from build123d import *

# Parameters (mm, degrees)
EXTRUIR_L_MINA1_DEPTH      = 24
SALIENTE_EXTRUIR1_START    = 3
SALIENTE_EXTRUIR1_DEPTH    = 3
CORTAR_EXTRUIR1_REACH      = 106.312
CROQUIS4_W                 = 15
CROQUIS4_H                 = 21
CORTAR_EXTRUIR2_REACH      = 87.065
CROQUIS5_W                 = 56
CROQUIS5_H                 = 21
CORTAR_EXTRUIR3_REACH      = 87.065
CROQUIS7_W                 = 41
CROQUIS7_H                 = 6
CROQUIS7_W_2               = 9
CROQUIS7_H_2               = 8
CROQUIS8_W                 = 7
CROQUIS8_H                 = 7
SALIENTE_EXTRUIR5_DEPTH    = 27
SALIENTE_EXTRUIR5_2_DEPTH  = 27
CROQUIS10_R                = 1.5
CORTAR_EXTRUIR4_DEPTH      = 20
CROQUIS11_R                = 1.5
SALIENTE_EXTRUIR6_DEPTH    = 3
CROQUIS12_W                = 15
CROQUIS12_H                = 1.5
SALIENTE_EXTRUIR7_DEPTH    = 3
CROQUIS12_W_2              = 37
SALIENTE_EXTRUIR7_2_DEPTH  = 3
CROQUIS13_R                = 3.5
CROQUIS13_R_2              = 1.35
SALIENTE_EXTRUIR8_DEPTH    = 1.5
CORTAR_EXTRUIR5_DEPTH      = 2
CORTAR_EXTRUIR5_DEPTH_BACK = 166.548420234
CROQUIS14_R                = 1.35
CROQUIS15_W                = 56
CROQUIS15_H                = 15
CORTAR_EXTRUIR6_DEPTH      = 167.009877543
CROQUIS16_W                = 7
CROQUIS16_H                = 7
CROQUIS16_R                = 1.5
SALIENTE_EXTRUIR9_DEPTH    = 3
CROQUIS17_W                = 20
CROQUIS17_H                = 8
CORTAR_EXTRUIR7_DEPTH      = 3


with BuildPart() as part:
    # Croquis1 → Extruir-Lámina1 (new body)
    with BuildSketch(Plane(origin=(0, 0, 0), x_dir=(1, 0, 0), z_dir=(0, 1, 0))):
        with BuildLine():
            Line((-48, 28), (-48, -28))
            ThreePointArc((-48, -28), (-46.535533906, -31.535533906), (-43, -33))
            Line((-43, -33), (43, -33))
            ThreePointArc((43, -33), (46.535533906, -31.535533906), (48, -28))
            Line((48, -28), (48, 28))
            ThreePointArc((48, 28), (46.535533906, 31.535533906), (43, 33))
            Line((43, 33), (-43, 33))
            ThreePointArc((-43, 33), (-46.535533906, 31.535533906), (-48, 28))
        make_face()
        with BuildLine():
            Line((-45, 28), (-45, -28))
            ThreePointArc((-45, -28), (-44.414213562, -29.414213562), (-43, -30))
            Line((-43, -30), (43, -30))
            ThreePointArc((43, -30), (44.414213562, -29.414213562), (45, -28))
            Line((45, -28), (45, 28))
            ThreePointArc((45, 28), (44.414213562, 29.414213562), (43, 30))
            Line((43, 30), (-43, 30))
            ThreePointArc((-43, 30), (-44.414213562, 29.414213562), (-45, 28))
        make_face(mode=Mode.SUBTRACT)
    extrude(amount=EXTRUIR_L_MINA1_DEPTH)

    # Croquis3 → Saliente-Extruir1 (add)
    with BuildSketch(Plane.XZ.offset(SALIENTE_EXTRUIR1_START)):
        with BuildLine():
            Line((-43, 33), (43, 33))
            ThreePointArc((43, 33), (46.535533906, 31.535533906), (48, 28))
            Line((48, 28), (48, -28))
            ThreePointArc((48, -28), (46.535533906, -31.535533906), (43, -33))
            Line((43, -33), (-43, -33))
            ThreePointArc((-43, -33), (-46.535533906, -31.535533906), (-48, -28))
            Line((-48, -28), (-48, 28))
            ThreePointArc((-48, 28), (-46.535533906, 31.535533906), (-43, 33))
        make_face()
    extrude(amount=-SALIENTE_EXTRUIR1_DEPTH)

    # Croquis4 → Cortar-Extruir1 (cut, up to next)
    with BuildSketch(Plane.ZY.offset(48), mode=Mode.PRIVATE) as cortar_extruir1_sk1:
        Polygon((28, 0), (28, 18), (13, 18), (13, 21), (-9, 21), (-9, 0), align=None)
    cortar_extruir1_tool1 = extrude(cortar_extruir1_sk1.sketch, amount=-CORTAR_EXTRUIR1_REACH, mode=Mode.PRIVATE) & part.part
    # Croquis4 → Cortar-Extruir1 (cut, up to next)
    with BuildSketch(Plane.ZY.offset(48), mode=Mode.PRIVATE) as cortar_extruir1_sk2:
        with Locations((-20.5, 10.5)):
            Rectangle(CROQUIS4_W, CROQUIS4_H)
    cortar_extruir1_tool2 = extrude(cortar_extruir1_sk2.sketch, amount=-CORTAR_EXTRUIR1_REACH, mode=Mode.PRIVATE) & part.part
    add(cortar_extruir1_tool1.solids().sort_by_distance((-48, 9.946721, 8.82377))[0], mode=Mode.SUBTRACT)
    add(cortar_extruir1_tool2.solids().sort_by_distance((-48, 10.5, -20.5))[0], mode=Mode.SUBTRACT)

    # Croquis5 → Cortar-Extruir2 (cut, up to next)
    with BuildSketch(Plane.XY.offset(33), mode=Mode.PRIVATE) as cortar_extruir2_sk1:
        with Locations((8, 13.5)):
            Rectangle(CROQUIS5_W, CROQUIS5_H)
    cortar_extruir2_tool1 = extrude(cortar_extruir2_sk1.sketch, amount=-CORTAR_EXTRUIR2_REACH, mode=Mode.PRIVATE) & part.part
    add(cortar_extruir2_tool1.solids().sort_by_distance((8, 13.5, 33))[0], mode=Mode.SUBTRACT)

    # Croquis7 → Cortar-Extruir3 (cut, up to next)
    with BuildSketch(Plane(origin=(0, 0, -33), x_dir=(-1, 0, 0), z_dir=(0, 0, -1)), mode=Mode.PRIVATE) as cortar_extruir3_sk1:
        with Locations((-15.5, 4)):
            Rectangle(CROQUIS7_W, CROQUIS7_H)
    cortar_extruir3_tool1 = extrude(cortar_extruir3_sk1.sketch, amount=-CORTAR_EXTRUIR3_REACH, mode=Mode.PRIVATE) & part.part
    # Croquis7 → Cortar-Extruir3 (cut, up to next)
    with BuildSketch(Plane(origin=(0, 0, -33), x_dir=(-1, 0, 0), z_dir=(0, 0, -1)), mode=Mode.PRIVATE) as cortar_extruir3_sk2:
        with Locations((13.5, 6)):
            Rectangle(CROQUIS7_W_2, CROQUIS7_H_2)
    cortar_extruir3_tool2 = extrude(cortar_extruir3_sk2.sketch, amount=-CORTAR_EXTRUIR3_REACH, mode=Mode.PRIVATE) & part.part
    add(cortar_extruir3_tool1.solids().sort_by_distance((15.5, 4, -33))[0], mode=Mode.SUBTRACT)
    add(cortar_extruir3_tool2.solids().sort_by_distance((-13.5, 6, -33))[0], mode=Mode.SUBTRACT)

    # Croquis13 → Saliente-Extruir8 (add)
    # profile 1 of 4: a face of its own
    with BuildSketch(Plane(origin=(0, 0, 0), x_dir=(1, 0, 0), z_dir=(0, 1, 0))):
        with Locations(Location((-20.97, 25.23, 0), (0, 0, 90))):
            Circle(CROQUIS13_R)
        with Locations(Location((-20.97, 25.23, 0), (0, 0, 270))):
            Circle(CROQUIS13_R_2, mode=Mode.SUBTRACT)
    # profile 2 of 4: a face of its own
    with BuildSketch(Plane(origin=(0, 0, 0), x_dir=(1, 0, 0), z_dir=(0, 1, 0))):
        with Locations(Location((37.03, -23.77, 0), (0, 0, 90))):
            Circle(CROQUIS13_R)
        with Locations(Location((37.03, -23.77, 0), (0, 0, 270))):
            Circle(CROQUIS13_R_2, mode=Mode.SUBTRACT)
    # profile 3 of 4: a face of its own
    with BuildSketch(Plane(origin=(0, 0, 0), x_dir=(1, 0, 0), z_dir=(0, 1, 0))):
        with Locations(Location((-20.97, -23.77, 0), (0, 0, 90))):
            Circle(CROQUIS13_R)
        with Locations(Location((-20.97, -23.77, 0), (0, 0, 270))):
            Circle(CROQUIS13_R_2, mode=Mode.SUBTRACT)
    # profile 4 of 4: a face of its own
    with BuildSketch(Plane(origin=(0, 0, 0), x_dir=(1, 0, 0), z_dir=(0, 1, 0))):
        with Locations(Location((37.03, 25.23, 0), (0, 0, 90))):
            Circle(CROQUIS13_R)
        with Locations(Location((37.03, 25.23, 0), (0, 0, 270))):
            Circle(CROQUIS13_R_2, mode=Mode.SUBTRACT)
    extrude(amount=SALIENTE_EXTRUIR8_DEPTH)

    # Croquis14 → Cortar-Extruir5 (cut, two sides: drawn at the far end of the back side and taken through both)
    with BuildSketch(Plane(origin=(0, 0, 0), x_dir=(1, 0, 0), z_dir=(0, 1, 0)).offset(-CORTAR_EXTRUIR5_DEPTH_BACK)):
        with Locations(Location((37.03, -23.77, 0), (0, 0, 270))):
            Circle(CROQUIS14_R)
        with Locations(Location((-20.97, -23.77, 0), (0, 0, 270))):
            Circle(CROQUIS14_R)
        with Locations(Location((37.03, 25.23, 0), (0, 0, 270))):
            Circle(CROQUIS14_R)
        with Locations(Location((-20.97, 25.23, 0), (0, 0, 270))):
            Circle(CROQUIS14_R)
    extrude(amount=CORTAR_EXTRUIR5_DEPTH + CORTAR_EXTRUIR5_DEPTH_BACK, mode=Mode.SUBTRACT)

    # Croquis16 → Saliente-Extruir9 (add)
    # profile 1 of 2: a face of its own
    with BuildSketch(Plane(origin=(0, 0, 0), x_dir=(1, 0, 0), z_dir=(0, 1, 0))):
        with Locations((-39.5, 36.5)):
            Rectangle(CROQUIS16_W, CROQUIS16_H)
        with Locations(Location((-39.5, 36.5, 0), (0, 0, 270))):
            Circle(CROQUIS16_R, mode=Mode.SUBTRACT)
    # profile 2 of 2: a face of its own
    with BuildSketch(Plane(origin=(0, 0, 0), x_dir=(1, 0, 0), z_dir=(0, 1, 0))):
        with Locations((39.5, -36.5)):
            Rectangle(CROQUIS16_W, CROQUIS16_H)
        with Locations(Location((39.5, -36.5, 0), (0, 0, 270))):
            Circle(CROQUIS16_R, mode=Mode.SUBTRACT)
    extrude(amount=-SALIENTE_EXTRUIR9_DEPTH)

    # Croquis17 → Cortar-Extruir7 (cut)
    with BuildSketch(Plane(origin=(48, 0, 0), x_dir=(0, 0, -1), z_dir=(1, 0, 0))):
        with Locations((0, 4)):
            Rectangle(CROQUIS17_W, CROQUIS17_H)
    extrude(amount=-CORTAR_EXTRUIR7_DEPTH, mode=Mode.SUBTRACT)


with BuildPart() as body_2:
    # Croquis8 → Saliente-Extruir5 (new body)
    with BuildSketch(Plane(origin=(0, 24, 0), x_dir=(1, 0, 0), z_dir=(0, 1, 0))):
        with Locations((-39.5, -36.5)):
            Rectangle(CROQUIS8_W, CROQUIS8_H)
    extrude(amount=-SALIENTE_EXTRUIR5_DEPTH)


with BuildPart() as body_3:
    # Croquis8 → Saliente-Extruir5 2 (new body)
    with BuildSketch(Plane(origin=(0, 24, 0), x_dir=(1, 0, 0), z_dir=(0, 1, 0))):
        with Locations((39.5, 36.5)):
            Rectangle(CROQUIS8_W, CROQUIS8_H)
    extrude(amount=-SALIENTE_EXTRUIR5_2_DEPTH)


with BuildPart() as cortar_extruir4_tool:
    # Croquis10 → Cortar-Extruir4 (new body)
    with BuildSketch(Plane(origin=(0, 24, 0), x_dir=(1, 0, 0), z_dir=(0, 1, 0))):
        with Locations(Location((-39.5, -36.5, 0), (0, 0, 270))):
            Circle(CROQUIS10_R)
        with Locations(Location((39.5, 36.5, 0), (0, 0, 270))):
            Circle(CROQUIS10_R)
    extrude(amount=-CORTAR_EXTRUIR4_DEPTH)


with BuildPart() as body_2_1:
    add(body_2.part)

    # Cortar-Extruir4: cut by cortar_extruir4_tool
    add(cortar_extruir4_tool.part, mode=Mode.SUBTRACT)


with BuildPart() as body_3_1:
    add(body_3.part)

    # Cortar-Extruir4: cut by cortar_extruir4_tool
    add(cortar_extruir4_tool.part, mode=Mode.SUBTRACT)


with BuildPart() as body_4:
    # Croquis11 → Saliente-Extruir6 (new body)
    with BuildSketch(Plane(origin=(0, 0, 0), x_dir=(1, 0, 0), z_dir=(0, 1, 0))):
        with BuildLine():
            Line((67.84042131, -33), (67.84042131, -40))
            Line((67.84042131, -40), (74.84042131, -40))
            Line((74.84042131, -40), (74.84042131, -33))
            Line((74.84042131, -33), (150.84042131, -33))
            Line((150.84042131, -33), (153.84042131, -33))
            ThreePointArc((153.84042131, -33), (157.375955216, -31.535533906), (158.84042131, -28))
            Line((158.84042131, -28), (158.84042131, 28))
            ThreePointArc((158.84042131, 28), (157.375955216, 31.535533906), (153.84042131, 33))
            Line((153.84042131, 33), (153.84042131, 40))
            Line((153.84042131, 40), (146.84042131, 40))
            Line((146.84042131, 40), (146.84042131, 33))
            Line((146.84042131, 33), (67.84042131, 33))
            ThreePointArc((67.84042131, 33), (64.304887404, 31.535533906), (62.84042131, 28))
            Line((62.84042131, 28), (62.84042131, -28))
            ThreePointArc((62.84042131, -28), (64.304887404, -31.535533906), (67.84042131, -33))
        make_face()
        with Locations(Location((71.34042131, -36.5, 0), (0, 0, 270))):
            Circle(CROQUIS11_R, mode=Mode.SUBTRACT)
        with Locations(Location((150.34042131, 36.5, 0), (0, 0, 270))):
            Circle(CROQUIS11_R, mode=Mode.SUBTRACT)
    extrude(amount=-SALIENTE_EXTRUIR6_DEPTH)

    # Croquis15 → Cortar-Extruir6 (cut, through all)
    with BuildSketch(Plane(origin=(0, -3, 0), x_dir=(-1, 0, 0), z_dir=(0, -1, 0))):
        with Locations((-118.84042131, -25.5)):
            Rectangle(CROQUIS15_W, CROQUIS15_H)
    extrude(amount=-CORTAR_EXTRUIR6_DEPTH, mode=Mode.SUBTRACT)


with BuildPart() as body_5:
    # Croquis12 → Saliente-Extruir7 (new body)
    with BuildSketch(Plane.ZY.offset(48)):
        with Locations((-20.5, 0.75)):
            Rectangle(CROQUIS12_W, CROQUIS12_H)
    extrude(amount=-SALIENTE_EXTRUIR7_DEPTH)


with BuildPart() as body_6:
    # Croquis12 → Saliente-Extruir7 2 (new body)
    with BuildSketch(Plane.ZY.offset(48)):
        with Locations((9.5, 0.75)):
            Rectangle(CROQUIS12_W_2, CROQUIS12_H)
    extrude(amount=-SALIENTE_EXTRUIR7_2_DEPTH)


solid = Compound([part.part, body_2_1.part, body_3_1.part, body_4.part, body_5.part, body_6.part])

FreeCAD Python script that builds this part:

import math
import FreeCAD as App
import Part
import Sketcher

V = App.Vector


def add_polygon(sketch, points):
    """Adds a closed chain of lines whose ends are joined by coincident constraints."""
    first, n = sketch.GeometryCount, len(points)
    for a, b in zip(points, points[1:] + points[:1]):
        sketch.addGeometry(Part.LineSegment(App.Vector(*a, 0), App.Vector(*b, 0)), False)
    for i in range(n):
        sketch.addConstraint(Sketcher.Constraint("Coincident", first + i, 2, first + (i + 1) % n, 1))

doc = App.newDocument("Part")
body = doc.addObject("PartDesign::Body", "Body")

# Sketch on XZ plane
sketch1 = body.newObject("Sketcher::SketchObject", "Sketch")
sketch1.AttachmentSupport = (doc.getObject("XZ_Plane"), [""])
sketch1.MapMode = "FlatFace"
sketch1.addGeometry(Part.LineSegment(V(-48, -28, 0), V(-48, 28, 0)), False)
sketch1.addGeometry(Part.ArcOfCircle(Part.Circle(V(-43, 28, 0), V(0, 0, 1), 5), math.radians(90), math.radians(180)), False)
sketch1.addGeometry(Part.LineSegment(V(-43, 33, 0), V(43, 33, 0)), False)
sketch1.addGeometry(Part.ArcOfCircle(Part.Circle(V(43, 28, 0), V(0, 0, 1), 5), math.radians(0), math.radians(90)), False)
sketch1.addGeometry(Part.LineSegment(V(48, 28, 0), V(48, -28, 0)), False)
sketch1.addGeometry(Part.ArcOfCircle(Part.Circle(V(43, -28, 0), V(0, 0, 1), 5), math.radians(-90), math.radians(0)), False)
sketch1.addGeometry(Part.LineSegment(V(43, -33, 0), V(-43, -33, 0)), False)
sketch1.addGeometry(Part.ArcOfCircle(Part.Circle(V(-43, -28, 0), V(0, 0, 1), 5), math.radians(180), math.radians(270)), False)
sketch1.addGeometry(Part.LineSegment(V(-45, 28, 0), V(-45, -28, 0)), False)
sketch1.addGeometry(Part.ArcOfCircle(Part.Circle(V(-43, -28, 0), V(0, 0, 1), 2), math.radians(-180), math.radians(-90)), False)
sketch1.addGeometry(Part.LineSegment(V(-43, -30, 0), V(43, -30, 0)), False)
sketch1.addGeometry(Part.ArcOfCircle(Part.Circle(V(43, -28, 0), V(0, 0, 1), 2), math.radians(-90), math.radians(0)), False)
sketch1.addGeometry(Part.LineSegment(V(45, -28, 0), V(45, 28, 0)), False)
sketch1.addGeometry(Part.ArcOfCircle(Part.Circle(V(43, 28, 0), V(0, 0, 1), 2), math.radians(0), math.radians(90)), False)
sketch1.addGeometry(Part.LineSegment(V(43, 30, 0), V(-43, 30, 0)), False)
sketch1.addGeometry(Part.ArcOfCircle(Part.Circle(V(-43, 28, 0), V(0, 0, 1), 2), math.radians(90), math.radians(180)), False)
sketch1.addConstraint(Sketcher.Constraint("Tangent", 0, 2, 1, 2))
sketch1.addConstraint(Sketcher.Constraint("Tangent", 1, 1, 2, 1))
sketch1.addConstraint(Sketcher.Constraint("Tangent", 2, 2, 3, 2))
sketch1.addConstraint(Sketcher.Constraint("Tangent", 3, 1, 4, 1))
sketch1.addConstraint(Sketcher.Constraint("Tangent", 4, 2, 5, 2))
sketch1.addConstraint(Sketcher.Constraint("Tangent", 5, 1, 6, 1))
sketch1.addConstraint(Sketcher.Constraint("Tangent", 6, 2, 7, 2))
sketch1.addConstraint(Sketcher.Constraint("Tangent", 7, 1, 0, 1))
sketch1.addConstraint(Sketcher.Constraint("Tangent", 8, 2, 9, 1))
sketch1.addConstraint(Sketcher.Constraint("Tangent", 9, 2, 10, 1))
sketch1.addConstraint(Sketcher.Constraint("Tangent", 10, 2, 11, 1))
sketch1.addConstraint(Sketcher.Constraint("Tangent", 11, 2, 12, 1))
sketch1.addConstraint(Sketcher.Constraint("Tangent", 12, 2, 13, 1))
sketch1.addConstraint(Sketcher.Constraint("Tangent", 13, 2, 14, 1))
sketch1.addConstraint(Sketcher.Constraint("Tangent", 14, 2, 15, 1))
sketch1.addConstraint(Sketcher.Constraint("Tangent", 15, 2, 8, 1))
sketch1.addConstraint(Sketcher.Constraint("Vertical", 0))
sketch1.addConstraint(Sketcher.Constraint("Horizontal", 2))
sketch1.addConstraint(Sketcher.Constraint("Vertical", 4))
sketch1.addConstraint(Sketcher.Constraint("Horizontal", 6))
sketch1.addConstraint(Sketcher.Constraint("Vertical", 8))
sketch1.addConstraint(Sketcher.Constraint("Horizontal", 10))
sketch1.addConstraint(Sketcher.Constraint("Vertical", 12))
sketch1.addConstraint(Sketcher.Constraint("Horizontal", 14))
sketch1.addConstraint(Sketcher.Constraint("Coincident", 9, 3, 7, 3))
sketch1.addConstraint(Sketcher.Constraint("Coincident", 11, 3, 5, 3))
sketch1.addConstraint(Sketcher.Constraint("Coincident", 13, 3, 3, 3))
sketch1.addConstraint(Sketcher.Constraint("Equal", 1, 3))
sketch1.addConstraint(Sketcher.Constraint("Equal", 3, 5))
sketch1.addConstraint(Sketcher.Constraint("Equal", 5, 7))
sketch1.addConstraint(Sketcher.Constraint("Equal", 13, 15))
sketch1.addConstraint(Sketcher.Constraint("Symmetric", 1, 3, 5, 3, -1, 1))
sketch1.addConstraint(Sketcher.Constraint("Radius", 1, 5.0))
sketch1.addConstraint(Sketcher.Constraint("Radius", 9, 2.0))
sketch1.addConstraint(Sketcher.Constraint("DistanceX", 2, 1, 2, 2, 86.0))
sketch1.addConstraint(Sketcher.Constraint("DistanceY", 0, 1, 0, 2, 56.0))
pad1 = body.newObject("PartDesign::Pad", "Pad")
pad1.Profile = sketch1
pad1.Length = 24
pad1.Reversed = True

# Sketch on XZ plane
sketch2 = body.newObject("Sketcher::SketchObject", "Sketch001")
sketch2.AttachmentSupport = (doc.getObject("XZ_Plane"), [""])
sketch2.MapMode = "FlatFace"
sketch2.AttachmentOffset = App.Placement(V(0, 0, 3), App.Rotation())
sketch2.addGeometry(Part.LineSegment(V(43, 33, 0), V(-43, 33, 0)), False)
sketch2.addGeometry(Part.ArcOfCircle(Part.Circle(V(-43, 28, 0), V(0, 0, 1), 5), math.radians(90), math.radians(180)), False)
sketch2.addGeometry(Part.LineSegment(V(-48, 28, 0), V(-48, -28, 0)), False)
sketch2.addGeometry(Part.ArcOfCircle(Part.Circle(V(-43, -28, 0), V(0, 0, 1), 5), math.radians(180), math.radians(270)), False)
sketch2.addGeometry(Part.LineSegment(V(-43, -33, 0), V(43, -33, 0)), False)
sketch2.addGeometry(Part.ArcOfCircle(Part.Circle(V(43, -28, 0), V(0, 0, 1), 5), math.radians(-90), math.radians(0)), False)
sketch2.addGeometry(Part.LineSegment(V(48, -28, 0), V(48, 28, 0)), False)
sketch2.addGeometry(Part.ArcOfCircle(Part.Circle(V(43, 28, 0), V(0, 0, 1), 5), math.radians(0), math.radians(90)), False)
sketch2.addConstraint(Sketcher.Constraint("Tangent", 0, 2, 1, 1))
sketch2.addConstraint(Sketcher.Constraint("Tangent", 1, 2, 2, 1))
sketch2.addConstraint(Sketcher.Constraint("Tangent", 2, 2, 3, 1))
sketch2.addConstraint(Sketcher.Constraint("Tangent", 3, 2, 4, 1))
sketch2.addConstraint(Sketcher.Constraint("Tangent", 4, 2, 5, 1))
sketch2.addConstraint(Sketcher.Constraint("Tangent", 5, 2, 6, 1))
sketch2.addConstraint(Sketcher.Constraint("Tangent", 6, 2, 7, 1))
sketch2.addConstraint(Sketcher.Constraint("Tangent", 7, 2, 0, 1))
sketch2.addConstraint(Sketcher.Constraint("Horizontal", 0))
sketch2.addConstraint(Sketcher.Constraint("Vertical", 2))
sketch2.addConstraint(Sketcher.Constraint("Horizontal", 4))
sketch2.addConstraint(Sketcher.Constraint("Vertical", 6))
sketch2.addConstraint(Sketcher.Constraint("Equal", 1, 3))
sketch2.addConstraint(Sketcher.Constraint("Equal", 3, 5))
sketch2.addConstraint(Sketcher.Constraint("Equal", 5, 7))
sketch2.addConstraint(Sketcher.Constraint("Symmetric", 1, 3, 5, 3, -1, 1))
sketch2.addConstraint(Sketcher.Constraint("Radius", 1, 5.0))
sketch2.addConstraint(Sketcher.Constraint("DistanceX", 0, 2, 0, 1, 86.0))
sketch2.addConstraint(Sketcher.Constraint("DistanceY", 2, 2, 2, 1, 56.0))
pad2 = body.newObject("PartDesign::Pad", "Pad001")
pad2.Profile = sketch2
pad2.Length = 3
pad2.Reversed = True

# Sketch on YZ plane
sketch3 = body.newObject("Sketcher::SketchObject", "Sketch002")
sketch3.AttachmentSupport = (doc.getObject("YZ_Plane"), [""])
sketch3.MapMode = "FlatFace"
sketch3.AttachmentOffset = App.Placement(V(0, 0, -48), App.Rotation())
add_polygon(sketch3, [(0, 28), (18, 28), (18, 13), (21, 13), (21, -9), (0, -9)])  # lines 0-5
sketch3.addConstraint(Sketcher.Constraint("Horizontal", 0))
sketch3.addConstraint(Sketcher.Constraint("Vertical", 1))
sketch3.addConstraint(Sketcher.Constraint("Horizontal", 2))
sketch3.addConstraint(Sketcher.Constraint("Vertical", 3))
sketch3.addConstraint(Sketcher.Constraint("Horizontal", 4))
sketch3.addConstraint(Sketcher.Constraint("Vertical", 5))
sketch3.addConstraint(Sketcher.Constraint("PointOnObject", 4, 2, -2))
sketch3.addConstraint(Sketcher.Constraint("DistanceX", 0, 1, 0, 2, 18.0))
sketch3.addConstraint(Sketcher.Constraint("DistanceX", 2, 1, 2, 2, 3.0))
sketch3.addConstraint(Sketcher.Constraint("DistanceY", 1, 2, 1, 1, 15.0))
sketch3.addConstraint(Sketcher.Constraint("DistanceY", 3, 2, 3, 1, 22.0))
sketch3.addConstraint(Sketcher.Constraint("DistanceY", -1, 1, 0, 2, 28.0))
pocket1 = body.newObject("PartDesign::Pocket", "Pocket")
pocket1.Profile = sketch3
pocket1.Type = "UpToFirst"
pocket1.Reversed = True

# Sketch on YZ plane
sketch4 = body.newObject("Sketcher::SketchObject", "Sketch003")
sketch4.AttachmentSupport = (doc.getObject("YZ_Plane"), [""])
sketch4.MapMode = "FlatFace"
sketch4.AttachmentOffset = App.Placement(V(0, 0, -48), App.Rotation())
add_polygon(sketch4, [(21, -28), (0, -28), (0, -13), (21, -13)])  # lines 0-3
sketch4.addConstraint(Sketcher.Constraint("Horizontal", 0))
sketch4.addConstraint(Sketcher.Constraint("Vertical", 1))
sketch4.addConstraint(Sketcher.Constraint("Horizontal", 2))
sketch4.addConstraint(Sketcher.Constraint("Vertical", 3))
sketch4.addConstraint(Sketcher.Constraint("PointOnObject", 0, 2, -2))
sketch4.addConstraint(Sketcher.Constraint("DistanceX", 0, 2, 0, 1, 21.0))
sketch4.addConstraint(Sketcher.Constraint("DistanceY", 1, 1, 1, 2, 15.0))
sketch4.addConstraint(Sketcher.Constraint("DistanceY", 0, 2, -1, 1, 28.0))
pocket2 = body.newObject("PartDesign::Pocket", "Pocket001")
pocket2.Profile = sketch4
pocket2.Type = "UpToFirst"
pocket2.Reversed = True

# Sketch on XY plane
sketch5 = body.newObject("Sketcher::SketchObject", "Sketch004")
sketch5.AttachmentSupport = (doc.getObject("XY_Plane"), [""])
sketch5.MapMode = "FlatFace"
sketch5.AttachmentOffset = App.Placement(V(0, 0, 33), App.Rotation())
add_polygon(sketch5, [(-20, 24), (-20, 3), (36, 3), (36, 24)])  # lines 0-3
sketch5.addConstraint(Sketcher.Constraint("Vertical", 0))
sketch5.addConstraint(Sketcher.Constraint("Horizontal", 1))
sketch5.addConstraint(Sketcher.Constraint("Vertical", 2))
sketch5.addConstraint(Sketcher.Constraint("Horizontal", 3))
sketch5.addConstraint(Sketcher.Constraint("DistanceX", 1, 1, 1, 2, 56.0))
sketch5.addConstraint(Sketcher.Constraint("DistanceY", 0, 2, 0, 1, 21.0))
sketch5.addConstraint(Sketcher.Constraint("DistanceX", 0, 2, -1, 1, 20.0))
sketch5.addConstraint(Sketcher.Constraint("DistanceY", -1, 1, 0, 2, 3.0))
pocket3 = body.newObject("PartDesign::Pocket", "Pocket002")
pocket3.Profile = sketch5
pocket3.Type = "UpToFirst"

# Sketch on XY plane
sketch6 = body.newObject("Sketcher::SketchObject", "Sketch005")
sketch6.AttachmentSupport = (doc.getObject("XY_Plane"), [""])
sketch6.MapMode = "FlatFace"
sketch6.AttachmentOffset = App.Placement(V(0, 0, -33), App.Rotation())
add_polygon(sketch6, [(36, 7), (36, 1), (-5, 1), (-5, 7)])  # lines 0-3
sketch6.addConstraint(Sketcher.Constraint("Vertical", 0))
sketch6.addConstraint(Sketcher.Constraint("Horizontal", 1))
sketch6.addConstraint(Sketcher.Constraint("Vertical", 2))
sketch6.addConstraint(Sketcher.Constraint("Horizontal", 3))
sketch6.addConstraint(Sketcher.Constraint("DistanceX", 1, 2, 1, 1, 41.0))
sketch6.addConstraint(Sketcher.Constraint("DistanceY", 0, 2, 0, 1, 6.0))
sketch6.addConstraint(Sketcher.Constraint("DistanceX", -1, 1, 0, 2, 36.0))
sketch6.addConstraint(Sketcher.Constraint("DistanceY", -1, 1, 0, 2, 1.0))
pocket4 = body.newObject("PartDesign::Pocket", "Pocket003")
pocket4.Profile = sketch6
pocket4.Type = "UpToFirst"
pocket4.Reversed = True

# Sketch on XY plane
sketch7 = body.newObject("Sketcher::SketchObject", "Sketch006")
sketch7.AttachmentSupport = (doc.getObject("XY_Plane"), [""])
sketch7.MapMode = "FlatFace"
sketch7.AttachmentOffset = App.Placement(V(0, 0, -33), App.Rotation())
add_polygon(sketch7, [(-9, 10), (-9, 2), (-18, 2), (-18, 10)])  # lines 0-3
sketch7.addConstraint(Sketcher.Constraint("Vertical", 0))
sketch7.addConstraint(Sketcher.Constraint("Horizontal", 1))
sketch7.addConstraint(Sketcher.Constraint("Vertical", 2))
sketch7.addConstraint(Sketcher.Constraint("Horizontal", 3))
sketch7.addConstraint(Sketcher.Constraint("DistanceX", 1, 2, 1, 1, 9.0))
sketch7.addConstraint(Sketcher.Constraint("DistanceY", 0, 2, 0, 1, 8.0))
sketch7.addConstraint(Sketcher.Constraint("DistanceX", 0, 2, -1, 1, 9.0))
sketch7.addConstraint(Sketcher.Constraint("DistanceY", -1, 1, 0, 2, 2.0))
pocket5 = body.newObject("PartDesign::Pocket", "Pocket004")
pocket5.Profile = sketch7
pocket5.Type = "UpToFirst"
pocket5.Reversed = True

# Sketch on XZ plane
sketch8 = body.newObject("Sketcher::SketchObject", "Sketch007")
sketch8.AttachmentSupport = (doc.getObject("XZ_Plane"), [""])
sketch8.MapMode = "FlatFace"
sketch8.addGeometry(Part.Circle(V(-21, -25.2, 0), V(0, 0, 1), 3.5), False)
sketch8.addGeometry(Part.Circle(V(-21, -25.2, 0), V(0, 0, 1), 1.4), False)
sketch8.addGeometry(Part.Circle(V(37, 23.8, 0), V(0, 0, 1), 3.5), False)
sketch8.addGeometry(Part.Circle(V(37, 23.8, 0), V(0, 0, 1), 1.4), False)
sketch8.addGeometry(Part.Circle(V(-21, 23.8, 0), V(0, 0, 1), 3.5), False)
sketch8.addGeometry(Part.Circle(V(-21, 23.8, 0), V(0, 0, 1), 1.4), False)
sketch8.addGeometry(Part.Circle(V(37, -25.2, 0), V(0, 0, 1), 3.5), False)
sketch8.addGeometry(Part.Circle(V(37, -25.2, 0), V(0, 0, 1), 1.4), False)
sketch8.addConstraint(Sketcher.Constraint("Coincident", 1, 3, 0, 3))
sketch8.addConstraint(Sketcher.Constraint("Coincident", 3, 3, 2, 3))
sketch8.addConstraint(Sketcher.Constraint("Coincident", 5, 3, 4, 3))
sketch8.addConstraint(Sketcher.Constraint("Coincident", 7, 3, 6, 3))
sketch8.addConstraint(Sketcher.Constraint("Equal", 0, 2))
sketch8.addConstraint(Sketcher.Constraint("Equal", 1, 3))
sketch8.addConstraint(Sketcher.Constraint("Equal", 2, 4))
sketch8.addConstraint(Sketcher.Constraint("Equal", 3, 5))
sketch8.addConstraint(Sketcher.Constraint("Equal", 4, 6))
sketch8.addConstraint(Sketcher.Constraint("Equal", 5, 7))
sketch8.addConstraint(Sketcher.Constraint("Horizontal", 3, 3, 4, 3))
sketch8.addConstraint(Sketcher.Constraint("Horizontal", 1, 3, 6, 3))
sketch8.addConstraint(Sketcher.Constraint("Vertical", 1, 3, 4, 3))
sketch8.addConstraint(Sketcher.Constraint("Vertical", 3, 3, 6, 3))
sketch8.addConstraint(Sketcher.Constraint("Diameter", 0, 7.0))
sketch8.addConstraint(Sketcher.Constraint("Diameter", 1, 2.7))
sketch8.addConstraint(Sketcher.Constraint("DistanceX", 0, 3, 2, 3, 58.0))
sketch8.addConstraint(Sketcher.Constraint("DistanceY", 0, 3, 2, 3, 49.0))
sketch8.addConstraint(Sketcher.Constraint("DistanceX", 0, 3, -1, 1, 20.97))
sketch8.addConstraint(Sketcher.Constraint("DistanceY", 0, 3, -1, 1, 25.23))
pad3 = body.newObject("PartDesign::Pad", "Pad002")
pad3.Profile = sketch8
pad3.Length = 1.5
pad3.Reversed = True

# Sketch on XZ plane
sketch9 = body.newObject("Sketcher::SketchObject", "Sketch008")
sketch9.AttachmentSupport = (doc.getObject("XZ_Plane"), [""])
sketch9.MapMode = "FlatFace"
sketch9.addGeometry(Part.Circle(V(37, 23.8, 0), V(0, 0, 1), 1.4), False)
sketch9.addGeometry(Part.Circle(V(-21, 23.8, 0), V(0, 0, 1), 1.4), False)
sketch9.addGeometry(Part.Circle(V(37, -25.2, 0), V(0, 0, 1), 1.4), False)
sketch9.addGeometry(Part.Circle(V(-21, -25.2, 0), V(0, 0, 1), 1.4), False)
sketch9.addConstraint(Sketcher.Constraint("Equal", 0, 1))
sketch9.addConstraint(Sketcher.Constraint("Equal", 1, 2))
sketch9.addConstraint(Sketcher.Constraint("Equal", 2, 3))
sketch9.addConstraint(Sketcher.Constraint("Horizontal", 0, 3, 1, 3))
sketch9.addConstraint(Sketcher.Constraint("Horizontal", 2, 3, 3, 3))
sketch9.addConstraint(Sketcher.Constraint("Vertical", 0, 3, 2, 3))
sketch9.addConstraint(Sketcher.Constraint("Vertical", 1, 3, 3, 3))
sketch9.addConstraint(Sketcher.Constraint("Diameter", 0, 2.7))
sketch9.addConstraint(Sketcher.Constraint("DistanceX", 1, 3, 0, 3, 58.0))
sketch9.addConstraint(Sketcher.Constraint("DistanceY", 2, 3, 0, 3, 49.0))
sketch9.addConstraint(Sketcher.Constraint("DistanceX", -1, 1, 0, 3, 37.03))
sketch9.addConstraint(Sketcher.Constraint("DistanceY", -1, 1, 0, 3, 23.77))
pocket6 = body.newObject("PartDesign::Pocket", "Pocket005")
pocket6.Profile = sketch9
pocket6.Type = "ThroughAll"
pocket6.Midplane = True

# Sketch on XZ plane
sketch10 = body.newObject("Sketcher::SketchObject", "Sketch009")
sketch10.AttachmentSupport = (doc.getObject("XZ_Plane"), [""])
sketch10.MapMode = "FlatFace"
add_polygon(sketch10, [(-43, -40), (-43, -33), (-36, -33), (-36, -40)])  # lines 0-3
sketch10.addGeometry(Part.Circle(V(-39.5, -36.5, 0), V(0, 0, 1), 1.5), False)  # 4
add_polygon(sketch10, [(36, 33), (36, 40), (43, 40), (43, 33)])  # lines 5-8
sketch10.addGeometry(Part.Circle(V(39.5, 36.5, 0), V(0, 0, 1), 1.5), False)  # 9
sketch10.addConstraint(Sketcher.Constraint("Vertical", 0))
sketch10.addConstraint(Sketcher.Constraint("Horizontal", 1))
sketch10.addConstraint(Sketcher.Constraint("Vertical", 2))
sketch10.addConstraint(Sketcher.Constraint("Horizontal", 3))
sketch10.addConstraint(Sketcher.Constraint("Vertical", 5))
sketch10.addConstraint(Sketcher.Constraint("Horizontal", 6))
sketch10.addConstraint(Sketcher.Constraint("Vertical", 7))
sketch10.addConstraint(Sketcher.Constraint("Horizontal", 8))
sketch10.addConstraint(Sketcher.Constraint("Equal", 4, 9))
sketch10.addConstraint(Sketcher.Constraint("Symmetric", 4, 3, 9, 3, -1, 1))
sketch10.addConstraint(Sketcher.Constraint("Symmetric", 2, 2, 5, 2, -1, 1))
sketch10.addConstraint(Sketcher.Constraint("Symmetric", 0, 2, 7, 2, -1, 1))
sketch10.addConstraint(Sketcher.Constraint("Equal", 8, 0))
sketch10.addConstraint(Sketcher.Constraint("Diameter", 4, 3.0))
sketch10.addConstraint(Sketcher.Constraint("DistanceX", 1, 1, 1, 2, 7.0))
sketch10.addConstraint(Sketcher.Constraint("DistanceX", 0, 2, -1, 1, 43.0))
sketch10.addConstraint(Sketcher.Constraint("DistanceY", 0, 2, -1, 1, 33.0))
sketch10.addConstraint(Sketcher.Constraint("DistanceX", 4, 3, 9, 3, 79.0))
sketch10.addConstraint(Sketcher.Constraint("DistanceY", 4, 3, 9, 3, 73.0))
pad4 = body.newObject("PartDesign::Pad", "Pad003")
pad4.Profile = sketch10
pad4.Length = 3

# Sketch on YZ plane
sketch11 = body.newObject("Sketcher::SketchObject", "Sketch010")
sketch11.AttachmentSupport = (doc.getObject("YZ_Plane"), [""])
sketch11.MapMode = "FlatFace"
sketch11.AttachmentOffset = App.Placement(V(0, 0, 48), App.Rotation())
add_polygon(sketch11, [(8, 10), (0, 10), (0, -10), (8, -10)])  # lines 0-3
sketch11.addConstraint(Sketcher.Constraint("Horizontal", 0))
sketch11.addConstraint(Sketcher.Constraint("Vertical", 1))
sketch11.addConstraint(Sketcher.Constraint("Horizontal", 2))
sketch11.addConstraint(Sketcher.Constraint("Vertical", 3))
sketch11.addConstraint(Sketcher.Constraint("Symmetric", 0, 2, 1, 2, -1, 1))
sketch11.addConstraint(Sketcher.Constraint("DistanceX", 0, 2, 0, 1, 8.0))
sketch11.addConstraint(Sketcher.Constraint("DistanceY", 1, 2, 1, 1, 20.0))
pocket7 = body.newObject("PartDesign::Pocket", "Pocket006")
pocket7.Profile = sketch11
pocket7.Length = 3
body2 = doc.addObject("PartDesign::Body", "Body001")

# Sketch on XZ plane
sketch12 = body2.newObject("Sketcher::SketchObject", "Sketch011")
sketch12.AttachmentSupport = (doc.getObject("XZ_Plane001"), [""])
sketch12.MapMode = "FlatFace"
sketch12.AttachmentOffset = App.Placement(V(0, 0, -24), App.Rotation())
add_polygon(sketch12, [(-43, 33), (-43, 40), (-36, 40), (-36, 33)])  # lines 0-3
sketch12.addConstraint(Sketcher.Constraint("Vertical", 0))
sketch12.addConstraint(Sketcher.Constraint("Horizontal", 1))
sketch12.addConstraint(Sketcher.Constraint("Vertical", 2))
sketch12.addConstraint(Sketcher.Constraint("Horizontal", 3))
sketch12.addConstraint(Sketcher.Constraint("Equal", 3, 0))
sketch12.addConstraint(Sketcher.Constraint("DistanceX", 1, 1, 1, 2, 7.0))
sketch12.addConstraint(Sketcher.Constraint("DistanceX", 0, 2, -1, 1, 43.0))
sketch12.addConstraint(Sketcher.Constraint("DistanceY", -1, 1, 0, 2, 40.0))
pad5 = body2.newObject("PartDesign::Pad", "Pad004")
pad5.Profile = sketch12
pad5.Length = 27
body3 = doc.addObject("PartDesign::Body", "Body002")

# Sketch on XZ plane
sketch13 = body3.newObject("Sketcher::SketchObject", "Sketch012")
sketch13.AttachmentSupport = (doc.getObject("XZ_Plane002"), [""])
sketch13.MapMode = "FlatFace"
sketch13.AttachmentOffset = App.Placement(V(0, 0, -24), App.Rotation())
add_polygon(sketch13, [(36, -40), (36, -33), (43, -33), (43, -40)])  # lines 0-3
sketch13.addConstraint(Sketcher.Constraint("Vertical", 0))
sketch13.addConstraint(Sketcher.Constraint("Horizontal", 1))
sketch13.addConstraint(Sketcher.Constraint("Vertical", 2))
sketch13.addConstraint(Sketcher.Constraint("Horizontal", 3))
sketch13.addConstraint(Sketcher.Constraint("Equal", 3, 0))
sketch13.addConstraint(Sketcher.Constraint("DistanceX", 1, 1, 1, 2, 7.0))
sketch13.addConstraint(Sketcher.Constraint("DistanceX", -1, 1, 0, 2, 36.0))
sketch13.addConstraint(Sketcher.Constraint("DistanceY", 0, 2, -1, 1, 33.0))
pad6 = body3.newObject("PartDesign::Pad", "Pad005")
pad6.Profile = sketch13
pad6.Length = 27
body4 = doc.addObject("PartDesign::Body", "Body003")
body4.AllowCompound = True

# Sketch on XZ plane
sketch14 = body4.newObject("Sketcher::SketchObject", "Sketch013")
sketch14.AttachmentSupport = (doc.getObject("XZ_Plane003"), [""])
sketch14.MapMode = "FlatFace"
sketch14.AttachmentOffset = App.Placement(V(0, 0, -24), App.Rotation())
sketch14.addGeometry(Part.Circle(V(-39.5, 36.5, 0), V(0, 0, 1), 1.5), False)
sketch14.addGeometry(Part.Circle(V(39.5, -36.5, 0), V(0, 0, 1), 1.5), False)
sketch14.addConstraint(Sketcher.Constraint("Equal", 0, 1))
sketch14.addConstraint(Sketcher.Constraint("Symmetric", 0, 3, 1, 3, -1, 1))
sketch14.addConstraint(Sketcher.Constraint("Diameter", 0, 3.0))
sketch14.addConstraint(Sketcher.Constraint("DistanceX", 0, 3, 1, 3, 79.0))
sketch14.addConstraint(Sketcher.Constraint("DistanceY", 1, 3, 0, 3, 73.0))
pad7 = body4.newObject("PartDesign::Pad", "Pad006")
pad7.Profile = sketch14
pad7.Length = 20
doc.recompute()

body5 = doc.addObject("PartDesign::Body", "Body004")
body5.BaseFeature = body4
boolean = body2.newObject("PartDesign::Boolean", "Boolean")
boolean.Type = "Cut"
boolean.addObjects([body5])
doc.recompute()

boolean2 = body3.newObject("PartDesign::Boolean", "Boolean001")
boolean2.Type = "Cut"
boolean2.addObjects([body4])
body6 = doc.addObject("PartDesign::Body", "Body005")

# Sketch on XZ plane
sketch15 = body6.newObject("Sketcher::SketchObject", "Sketch014")
sketch15.AttachmentSupport = (doc.getObject("XZ_Plane005"), [""])
sketch15.MapMode = "FlatFace"
sketch15.addGeometry(Part.LineSegment(V(67.8, 33, 0), V(67.8, 40, 0)), False)
sketch15.addGeometry(Part.LineSegment(V(67.8, 40, 0), V(74.8, 40, 0)), False)
sketch15.addGeometry(Part.LineSegment(V(74.8, 40, 0), V(74.8, 33, 0)), False)
sketch15.addGeometry(Part.LineSegment(V(74.8, 33, 0), V(153.8, 33, 0)), False)
sketch15.addGeometry(Part.ArcOfCircle(Part.Circle(V(153.8, 28, 0), V(0, 0, 1), 5), math.radians(0), math.radians(90)), False)
sketch15.addGeometry(Part.LineSegment(V(158.8, 28, 0), V(158.8, -28, 0)), False)
sketch15.addGeometry(Part.ArcOfCircle(Part.Circle(V(153.8, -28, 0), V(0, 0, 1), 5), math.radians(-90), math.radians(0)), False)
sketch15.addGeometry(Part.LineSegment(V(153.8, -33, 0), V(153.8, -40, 0)), False)
sketch15.addGeometry(Part.LineSegment(V(153.8, -40, 0), V(146.8, -40, 0)), False)
sketch15.addGeometry(Part.LineSegment(V(146.8, -40, 0), V(146.8, -33, 0)), False)
sketch15.addGeometry(Part.LineSegment(V(146.8, -33, 0), V(67.8, -33, 0)), False)
sketch15.addGeometry(Part.ArcOfCircle(Part.Circle(V(67.8, -28, 0), V(0, 0, 1), 5), math.radians(180), math.radians(270)), False)
sketch15.addGeometry(Part.LineSegment(V(62.8, -28, 0), V(62.8, 28, 0)), False)
sketch15.addGeometry(Part.ArcOfCircle(Part.Circle(V(67.8, 28, 0), V(0, 0, 1), 5), math.radians(90), math.radians(180)), False)
sketch15.addGeometry(Part.Circle(V(71.3, 36.5, 0), V(0, 0, 1), 1.5), False)
sketch15.addGeometry(Part.Circle(V(150.3, -36.5, 0), V(0, 0, 1), 1.5), False)
sketch15.addConstraint(Sketcher.Constraint("Coincident", 0, 2, 1, 1))
sketch15.addConstraint(Sketcher.Constraint("Coincident", 1, 2, 2, 1))
sketch15.addConstraint(Sketcher.Constraint("Coincident", 2, 2, 3, 1))
sketch15.addConstraint(Sketcher.Constraint("Tangent", 3, 2, 4, 2))
sketch15.addConstraint(Sketcher.Constraint("Tangent", 4, 1, 5, 1))
sketch15.addConstraint(Sketcher.Constraint("Tangent", 5, 2, 6, 2))
sketch15.addConstraint(Sketcher.Constraint("Coincident", 6, 1, 7, 1))
sketch15.addConstraint(Sketcher.Constraint("Coincident", 7, 2, 8, 1))
sketch15.addConstraint(Sketcher.Constraint("Coincident", 8, 2, 9, 1))
sketch15.addConstraint(Sketcher.Constraint("Coincident", 9, 2, 10, 1))
sketch15.addConstraint(Sketcher.Constraint("Tangent", 10, 2, 11, 2))
sketch15.addConstraint(Sketcher.Constraint("Tangent", 11, 1, 12, 1))
sketch15.addConstraint(Sketcher.Constraint("Tangent", 12, 2, 13, 2))
sketch15.addConstraint(Sketcher.Constraint("Coincident", 13, 1, 0, 1))
sketch15.addConstraint(Sketcher.Constraint("Vertical", 0))
sketch15.addConstraint(Sketcher.Constraint("Horizontal", 1))
sketch15.addConstraint(Sketcher.Constraint("Vertical", 2))
sketch15.addConstraint(Sketcher.Constraint("Horizontal", 3))
sketch15.addConstraint(Sketcher.Constraint("Vertical", 5))
sketch15.addConstraint(Sketcher.Constraint("Vertical", 7))
sketch15.addConstraint(Sketcher.Constraint("Horizontal", 8))
sketch15.addConstraint(Sketcher.Constraint("Vertical", 9))
sketch15.addConstraint(Sketcher.Constraint("Horizontal", 10))
sketch15.addConstraint(Sketcher.Constraint("Vertical", 12))
sketch15.addConstraint(Sketcher.Constraint("Equal", 4, 6))
sketch15.addConstraint(Sketcher.Constraint("Equal", 6, 11))
sketch15.addConstraint(Sketcher.Constraint("Equal", 11, 13))
sketch15.addConstraint(Sketcher.Constraint("Equal", 14, 15))
sketch15.addConstraint(Sketcher.Constraint("Symmetric", 3, 2, 6, 1, -1))
sketch15.addConstraint(Sketcher.Constraint("Symmetric", 10, 2, 13, 1, -1))
sketch15.addConstraint(Sketcher.Constraint("Horizontal", 6, 3, 11, 3))
sketch15.addConstraint(Sketcher.Constraint("Equal", 1, 8))
sketch15.addConstraint(Sketcher.Constraint("Equal", 8, 0))
sketch15.addConstraint(Sketcher.Constraint("Equal", 2, 7))
sketch15.addConstraint(Sketcher.Constraint("Diameter", 14, 3.0))
sketch15.addConstraint(Sketcher.Constraint("Radius", 4, 5.0))
sketch15.addConstraint(Sketcher.Constraint("DistanceX", 1, 1, 1, 2, 7.0))
sketch15.addConstraint(Sketcher.Constraint("DistanceX", 3, 1, 3, 2, 79.0))
sketch15.addConstraint(Sketcher.Constraint("DistanceY", 5, 2, 5, 1, 56.0))
sketch15.addConstraint(Sketcher.Constraint("DistanceX", 14, 3, 15, 3, 79.0))
sketch15.addConstraint(Sketcher.Constraint("DistanceY", 15, 3, 14, 3, 73.0))
sketch15.addConstraint(Sketcher.Constraint("DistanceY", -1, 1, 14, 3, 36.5))
sketch15.addConstraint(Sketcher.Constraint("DistanceX", 13, 3, 14, 3, 3.5))
sketch15.addConstraint(Sketcher.Constraint("DistanceX", -1, 1, 4, 3, 153.840421))
pad8 = body6.newObject("PartDesign::Pad", "Pad007")
pad8.Profile = sketch15
pad8.Length = 3

# Sketch on XZ plane
sketch16 = body6.newObject("Sketcher::SketchObject", "Sketch015")
sketch16.AttachmentSupport = (doc.getObject("XZ_Plane005"), [""])
sketch16.MapMode = "FlatFace"
sketch16.AttachmentOffset = App.Placement(V(0, 0, 3), App.Rotation())
add_polygon(sketch16, [(147, 18), (147, 33), (91, 33), (91, 18)])  # lines 0-3
sketch16.addConstraint(Sketcher.Constraint("Vertical", 0))
sketch16.addConstraint(Sketcher.Constraint("Horizontal", 1))
sketch16.addConstraint(Sketcher.Constraint("Vertical", 2))
sketch16.addConstraint(Sketcher.Constraint("Horizontal", 3))
sketch16.addConstraint(Sketcher.Constraint("DistanceX", 1, 2, 1, 1, 56.0))
sketch16.addConstraint(Sketcher.Constraint("DistanceY", 0, 1, 0, 2, 15.0))
sketch16.addConstraint(Sketcher.Constraint("DistanceY", -1, 1, 0, 2, 33.0))
sketch16.addConstraint(Sketcher.Constraint("DistanceX", -1, 1, 0, 2, 146.840421))
pocket8 = body6.newObject("PartDesign::Pocket", "Pocket007")
pocket8.Profile = sketch16
pocket8.Type = "ThroughAll"
body7 = doc.addObject("PartDesign::Body", "Body006")

# Sketch on YZ plane
sketch17 = body7.newObject("Sketcher::SketchObject", "Sketch016")
sketch17.AttachmentSupport = (doc.getObject("YZ_Plane006"), [""])
sketch17.MapMode = "FlatFace"
sketch17.AttachmentOffset = App.Placement(V(0, 0, -48), App.Rotation())
add_polygon(sketch17, [(1.5, -28), (0, -28), (0, -13), (1.5, -13)])  # lines 0-3
sketch17.addConstraint(Sketcher.Constraint("Horizontal", 0))
sketch17.addConstraint(Sketcher.Constraint("Vertical", 1))
sketch17.addConstraint(Sketcher.Constraint("Horizontal", 2))
sketch17.addConstraint(Sketcher.Constraint("Vertical", 3))
sketch17.addConstraint(Sketcher.Constraint("PointOnObject", 0, 2, -2))
sketch17.addConstraint(Sketcher.Constraint("DistanceY", 1, 1, 1, 2, 15.0))
sketch17.addConstraint(Sketcher.Constraint("DistanceX", 0, 2, 0, 1, 1.5))
sketch17.addConstraint(Sketcher.Constraint("DistanceY", 0, 2, -1, 1, 28.0))
pad9 = body7.newObject("PartDesign::Pad", "Pad008")
pad9.Profile = sketch17
pad9.Length = 3
body8 = doc.addObject("PartDesign::Body", "Body007")

# Sketch on YZ plane
sketch18 = body8.newObject("Sketcher::SketchObject", "Sketch017")
sketch18.AttachmentSupport = (doc.getObject("YZ_Plane007"), [""])
sketch18.MapMode = "FlatFace"
sketch18.AttachmentOffset = App.Placement(V(0, 0, -48), App.Rotation())
add_polygon(sketch18, [(1.5, -9), (0, -9), (0, 28), (1.5, 28)])  # lines 0-3
sketch18.addConstraint(Sketcher.Constraint("Horizontal", 0))
sketch18.addConstraint(Sketcher.Constraint("Vertical", 1))
sketch18.addConstraint(Sketcher.Constraint("Horizontal", 2))
sketch18.addConstraint(Sketcher.Constraint("Vertical", 3))
sketch18.addConstraint(Sketcher.Constraint("PointOnObject", 0, 2, -2))
sketch18.addConstraint(Sketcher.Constraint("DistanceY", 1, 1, 1, 2, 37.0))
sketch18.addConstraint(Sketcher.Constraint("DistanceX", 0, 2, 0, 1, 1.5))
sketch18.addConstraint(Sketcher.Constraint("DistanceY", 0, 2, -1, 1, 9.0))
pad10 = body8.newObject("PartDesign::Pad", "Pad009")
pad10.Profile = sketch18
pad10.Length = 3

doc.recompute()
